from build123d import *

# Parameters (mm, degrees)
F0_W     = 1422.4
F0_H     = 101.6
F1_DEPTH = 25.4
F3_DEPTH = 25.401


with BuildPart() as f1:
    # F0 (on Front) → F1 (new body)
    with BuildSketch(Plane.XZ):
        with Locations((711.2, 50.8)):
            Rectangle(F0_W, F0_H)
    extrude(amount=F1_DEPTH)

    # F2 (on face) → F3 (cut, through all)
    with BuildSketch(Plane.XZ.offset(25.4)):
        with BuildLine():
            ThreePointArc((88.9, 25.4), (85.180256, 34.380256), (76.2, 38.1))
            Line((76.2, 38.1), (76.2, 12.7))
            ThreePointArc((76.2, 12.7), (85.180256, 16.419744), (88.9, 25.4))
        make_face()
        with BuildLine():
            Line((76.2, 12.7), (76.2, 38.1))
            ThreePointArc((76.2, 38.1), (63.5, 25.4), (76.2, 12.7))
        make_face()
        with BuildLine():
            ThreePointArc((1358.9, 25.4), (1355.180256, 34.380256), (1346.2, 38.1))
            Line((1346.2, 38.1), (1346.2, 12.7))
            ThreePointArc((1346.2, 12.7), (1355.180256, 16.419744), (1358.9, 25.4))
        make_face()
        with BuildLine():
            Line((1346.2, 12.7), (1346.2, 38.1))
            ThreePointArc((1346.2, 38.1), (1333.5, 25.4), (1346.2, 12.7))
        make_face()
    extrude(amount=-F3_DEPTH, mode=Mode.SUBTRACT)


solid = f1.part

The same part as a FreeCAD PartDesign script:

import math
import FreeCAD as App
import Part
import Sketcher
from FreeCAD import Vector
Q = App.Units.Quantity

doc = App.newDocument("Part")
params = doc.addObject("Spreadsheet::Sheet", "Params")
for row, (alias, value) in enumerate([
    ("sketch1_width", "56 in"),
    ("sketch1_height", "4 in"),
    ("pad1_length", "1 in"),
    ("sketch2_radius", "0.5 in"),
], start=1):
    params.set(f"A{row}", alias)
    params.set(f"B{row}", "=" + value)
    params.setAlias(f"B{row}", alias)

body = doc.addObject("PartDesign::Body", "Body")

# Sketch on XZ plane
sketch1 = body.newObject("Sketcher::SketchObject", "Sketch")
sketch1.AttachmentSupport = (doc.getObject("XZ_Plane"), [""])
sketch1.MapMode = "FlatFace"
sketch1.addGeometry([
    Part.LineSegment(Vector(0, 102, 0), Vector(0, 0, 0)),
    Part.LineSegment(Vector(0, 0, 0), Vector(1422, 0, 0)),
    Part.LineSegment(Vector(1422, 0, 0), Vector(1422, 102, 0)),
    Part.LineSegment(Vector(1422, 102, 0), Vector(0, 102, 0)),
], False)
sketch1.addConstraint([
    Sketcher.Constraint("Coincident", 0, 2, 1, 1),
    Sketcher.Constraint("Coincident", 1, 2, 2, 1),
    Sketcher.Constraint("Coincident", 2, 2, 3, 1),
    Sketcher.Constraint("Coincident", 3, 2, 0, 1),
    Sketcher.Constraint("Vertical", 0),
    Sketcher.Constraint("Horizontal", 1),
    Sketcher.Constraint("Vertical", 2),
    Sketcher.Constraint("Horizontal", 3),
    Sketcher.Constraint("Coincident", 0, 2, -1, 1),
    Sketcher.Constraint("DistanceX", 1, 1, 1, 2, Q("56 in")),
    Sketcher.Constraint("DistanceY", 0, 2, 0, 1, Q("4 in")),
])
sketch1.setExpression("Constraints[9]", "Params.sketch1_width")
sketch1.setExpression("Constraints[10]", "Params.sketch1_height")
pad1 = body.newObject("PartDesign::Pad", "Pad")
pad1.Profile = sketch1
pad1.setExpression("Length", "Params.pad1_length")

# Sketch on XZ plane
sketch2 = body.newObject("Sketcher::SketchObject", "Sketch001")
sketch2.AttachmentSupport = (doc.getObject("XZ_Plane"), [""])
sketch2.MapMode = "FlatFace"
sketch2.AttachmentOffset = App.Placement(Vector(0, 0, 1 * 25.4), App.Rotation())
sketch2.addGeometry([
    Part.ArcOfCircle(Part.Circle(Vector(76, 25, 0), Vector(0, 0, 1), 13), math.radians(0), math.radians(90)),  # 0
    Part.ArcOfCircle(Part.Circle(Vector(76, 25, 0), Vector(0, 0, 1), 13), math.radians(90), math.radians(270)),  # 1
    Part.ArcOfCircle(Part.Circle(Vector(76, 25, 0), Vector(0, 0, 1), 13), math.radians(-90), math.radians(0)),  # 2
    Part.ArcOfCircle(Part.Circle(Vector(1346, 25, 0), Vector(0, 0, 1), 13), math.radians(0), math.radians(90)),  # 3
    Part.ArcOfCircle(Part.Circle(Vector(1346, 25, 0), Vector(0, 0, 1), 13), math.radians(90), math.radians(270)),  # 4
    Part.ArcOfCircle(Part.Circle(Vector(1346, 25, 0), Vector(0, 0, 1), 13), math.radians(-90), math.radians(0)),  # 5
], False)
sketch2.addConstraint([
    Sketcher.Constraint("Tangent", 0, 2, 1, 1),
    Sketcher.Constraint("Tangent", 1, 2, 2, 1),
    Sketcher.Constraint("Tangent", 2, 2, 0, 1),
    Sketcher.Constraint("Tangent", 3, 2, 4, 1),
    Sketcher.Constraint("Tangent", 4, 2, 5, 1),
    Sketcher.Constraint("Tangent", 5, 2, 3, 1),
    Sketcher.Constraint("Equal", 2, 3),
    Sketcher.Constraint("Horizontal", 2, 3, 3, 3),
    Sketcher.Constraint("Horizontal", 5, 3, 2, 2),
    Sketcher.Constraint("Horizontal", 2, 2, 5, 2),
    Sketcher.Constraint("Vertical", 2, 3, 0, 2),
    Sketcher.Constraint("Vertical", 0, 2, 1, 2),
    Sketcher.Constraint("Vertical", 5, 3, 3, 2),
    Sketcher.Constraint("Vertical", 3, 2, 4, 2),
    Sketcher.Constraint("Radius", 0, Q("0.5 in")),
    Sketcher.Constraint("DistanceX", -1, 1, 0, 3, Q("3 in")),
    Sketcher.Constraint("DistanceY", -1, 1, 0, 3, Q("1 in")),
    Sketcher.Constraint("DistanceX", -1, 1, 3, 3, Q("53 in")),
])
sketch2.setExpression("Constraints[14]", "Params.sketch2_radius")
pocket1 = body.newObject("PartDesign::Pocket", "Pocket")
pocket1.Profile = sketch2
pocket1.Type = "ThroughAll"

doc.recompute()
